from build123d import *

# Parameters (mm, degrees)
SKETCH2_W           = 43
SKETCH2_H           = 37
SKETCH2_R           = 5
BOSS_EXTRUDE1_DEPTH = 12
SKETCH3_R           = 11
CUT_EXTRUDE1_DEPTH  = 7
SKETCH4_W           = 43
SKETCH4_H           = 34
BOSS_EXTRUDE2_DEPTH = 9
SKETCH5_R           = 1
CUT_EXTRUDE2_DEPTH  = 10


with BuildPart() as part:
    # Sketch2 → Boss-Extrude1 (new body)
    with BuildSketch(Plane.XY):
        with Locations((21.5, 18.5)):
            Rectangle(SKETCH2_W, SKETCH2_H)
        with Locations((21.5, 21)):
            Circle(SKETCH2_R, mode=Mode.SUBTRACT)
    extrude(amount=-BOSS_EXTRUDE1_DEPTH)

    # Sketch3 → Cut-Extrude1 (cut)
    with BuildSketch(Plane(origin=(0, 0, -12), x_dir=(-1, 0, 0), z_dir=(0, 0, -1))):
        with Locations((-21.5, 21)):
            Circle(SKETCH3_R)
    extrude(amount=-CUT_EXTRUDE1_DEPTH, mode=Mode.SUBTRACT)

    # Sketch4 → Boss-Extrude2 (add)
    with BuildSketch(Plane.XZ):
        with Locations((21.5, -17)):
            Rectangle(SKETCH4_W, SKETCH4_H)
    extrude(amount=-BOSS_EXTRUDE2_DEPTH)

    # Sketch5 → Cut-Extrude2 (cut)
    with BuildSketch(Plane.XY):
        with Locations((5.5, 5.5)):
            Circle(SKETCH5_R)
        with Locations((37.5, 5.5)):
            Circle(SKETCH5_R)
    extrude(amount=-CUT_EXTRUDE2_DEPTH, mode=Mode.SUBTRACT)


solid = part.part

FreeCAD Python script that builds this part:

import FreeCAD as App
import Part
import Sketcher
Q = App.Units.Quantity

doc = App.newDocument("Part")
body = doc.addObject("PartDesign::Body", "Body")

# Sketch on XY plane
sketch1 = body.newObject("Sketcher::SketchObject", "Sketch")
sketch1.AttachmentSupport = (doc.getObject("XY_Plane"), [""])
sketch1.MapMode = "FlatFace"
sketch1.addGeometry(Part.LineSegment(App.Vector(0, 37, 0), App.Vector(0, 0, 0)), False)
sketch1.addGeometry(Part.LineSegment(App.Vector(0, 0, 0), App.Vector(43, 0, 0)), False)
sketch1.addGeometry(Part.LineSegment(App.Vector(43, 0, 0), App.Vector(43, 37, 0)), False)
sketch1.addGeometry(Part.LineSegment(App.Vector(43, 37, 0), App.Vector(0, 37, 0)), False)
sketch1.addGeometry(Part.Circle(App.Vector(21.5, 21, 0), App.Vector(0, 0, 1), 5), False)
sketch1.addConstraint(Sketcher.Constraint("Coincident", 0, 2, 1, 1))
sketch1.addConstraint(Sketcher.Constraint("Coincident", 1, 2, 2, 1))
sketch1.addConstraint(Sketcher.Constraint("Coincident", 2, 2, 3, 1))
sketch1.addConstraint(Sketcher.Constraint("Coincident", 3, 2, 0, 1))
sketch1.addConstraint(Sketcher.Constraint("Vertical", 0))
sketch1.addConstraint(Sketcher.Constraint("Horizontal", 1))
sketch1.addConstraint(Sketcher.Constraint("Vertical", 2))
sketch1.addConstraint(Sketcher.Constraint("Horizontal", 3))
sketch1.addConstraint(Sketcher.Constraint("Coincident", 0, 2, -1, 1))
sketch1.addConstraint(Sketcher.Constraint("Diameter", 4, Q("10 mm")))
sketch1.addConstraint(Sketcher.Constraint("DistanceX", 1, 1, 1, 2, Q("43 mm")))
sketch1.addConstraint(Sketcher.Constraint("DistanceY", 0, 2, 0, 1, Q("37 mm")))
sketch1.addConstraint(Sketcher.Constraint("DistanceY", -1, 1, 4, 3, Q("21 mm")))
sketch1.addConstraint(Sketcher.Constraint("DistanceX", -1, 1, 4, 3, Q("21.5 mm")))
pad1 = body.newObject("PartDesign::Pad", "Pad")
pad1.Profile = sketch1
pad1.Length = 12
pad1.Reversed = True

# Sketch on XY plane
sketch2 = body.newObject("Sketcher::SketchObject", "Sketch001")
sketch2.AttachmentSupport = (doc.getObject("XY_Plane"), [""])
sketch2.MapMode = "FlatFace"
sketch2.AttachmentOffset = App.Placement(App.Vector(0, 0, -12), App.Rotation())
sketch2.addGeometry(Part.Circle(App.Vector(21.5, 21, 0), App.Vector(0, 0, 1), 11), False)
sketch2.addConstraint(Sketcher.Constraint("Diameter", 0, Q("22 mm")))
sketch2.addConstraint(Sketcher.Constraint("DistanceY", -1, 1, 0, 3, Q("21 mm")))
sketch2.addConstraint(Sketcher.Constraint("DistanceX", -1, 1, 0, 3, Q("21.5 mm")))
pocket1 = body.newObject("PartDesign::Pocket", "Pocket")
pocket1.Profile = sketch2
pocket1.Length = 7
pocket1.Reversed = True

# Sketch on XZ plane
sketch3 = body.newObject("Sketcher::SketchObject", "Sketch002")
sketch3.AttachmentSupport = (doc.getObject("XZ_Plane"), [""])
sketch3.MapMode = "FlatFace"
sketch3.addGeometry(Part.LineSegment(App.Vector(0, 0, 0), App.Vector(0, -34, 0)), False)
sketch3.addGeometry(Part.LineSegment(App.Vector(0, -34, 0), App.Vector(43, -34, 0)), False)
sketch3.addGeometry(Part.LineSegment(App.Vector(43, -34, 0), App.Vector(43, 0, 0)), False)
sketch3.addGeometry(Part.LineSegment(App.Vector(43, 0, 0), App.Vector(0, 0, 0)), False)
sketch3.addConstraint(Sketcher.Constraint("Coincident", 0, 2, 1, 1))
sketch3.addConstraint(Sketcher.Constraint("Coincident", 1, 2, 2, 1))
sketch3.addConstraint(Sketcher.Constraint("Coincident", 2, 2, 3, 1))
sketch3.addConstraint(Sketcher.Constraint("Coincident", 3, 2, 0, 1))
sketch3.addConstraint(Sketcher.Constraint("Vertical", 0))
sketch3.addConstraint(Sketcher.Constraint("Horizontal", 1))
sketch3.addConstraint(Sketcher.Constraint("Vertical", 2))
sketch3.addConstraint(Sketcher.Constraint("Horizontal", 3))
sketch3.addConstraint(Sketcher.Constraint("Coincident", 3, 2, -1, 1))
sketch3.addConstraint(Sketcher.Constraint("DistanceX", 1, 1, 1, 2, Q("43 mm")))
sketch3.addConstraint(Sketcher.Constraint("DistanceY", 0, 2, 0, 1, Q("34 mm")))
pad2 = body.newObject("PartDesign::Pad", "Pad001")
pad2.Profile = sketch3
pad2.Length = 9
pad2.Reversed = True

# Sketch on XY plane
sketch4 = body.newObject("Sketcher::SketchObject", "Sketch003")
sketch4.AttachmentSupport = (doc.getObject("XY_Plane"), [""])
sketch4.MapMode = "FlatFace"
sketch4.addGeometry(Part.Circle(App.Vector(5.5, 5.5, 0), App.Vector(0, 0, 1), 1), False)
sketch4.addGeometry(Part.Circle(App.Vector(37.5, 5.5, 0), App.Vector(0, 0, 1), 1), False)
sketch4.addConstraint(Sketcher.Constraint("Equal", 0, 1))
sketch4.addConstraint(Sketcher.Constraint("Horizontal", 0, 3, 1, 3))
sketch4.addConstraint(Sketcher.Constraint("Diameter", 0, Q("2 mm")))
sketch4.addConstraint(Sketcher.Constraint("DistanceX", 0, 3, 1, 3, Q("32 mm")))
sketch4.addConstraint(Sketcher.Constraint("DistanceX", -1, 1, 0, 3, Q("5.5 mm")))
sketch4.addConstraint(Sketcher.Constraint("DistanceY", -1, 1, 0, 3, Q("5.5 mm")))
pocket2 = body.newObject("PartDesign::Pocket", "Pocket001")
pocket2.Profile = sketch4
pocket2.Length = 10

doc.recompute()
